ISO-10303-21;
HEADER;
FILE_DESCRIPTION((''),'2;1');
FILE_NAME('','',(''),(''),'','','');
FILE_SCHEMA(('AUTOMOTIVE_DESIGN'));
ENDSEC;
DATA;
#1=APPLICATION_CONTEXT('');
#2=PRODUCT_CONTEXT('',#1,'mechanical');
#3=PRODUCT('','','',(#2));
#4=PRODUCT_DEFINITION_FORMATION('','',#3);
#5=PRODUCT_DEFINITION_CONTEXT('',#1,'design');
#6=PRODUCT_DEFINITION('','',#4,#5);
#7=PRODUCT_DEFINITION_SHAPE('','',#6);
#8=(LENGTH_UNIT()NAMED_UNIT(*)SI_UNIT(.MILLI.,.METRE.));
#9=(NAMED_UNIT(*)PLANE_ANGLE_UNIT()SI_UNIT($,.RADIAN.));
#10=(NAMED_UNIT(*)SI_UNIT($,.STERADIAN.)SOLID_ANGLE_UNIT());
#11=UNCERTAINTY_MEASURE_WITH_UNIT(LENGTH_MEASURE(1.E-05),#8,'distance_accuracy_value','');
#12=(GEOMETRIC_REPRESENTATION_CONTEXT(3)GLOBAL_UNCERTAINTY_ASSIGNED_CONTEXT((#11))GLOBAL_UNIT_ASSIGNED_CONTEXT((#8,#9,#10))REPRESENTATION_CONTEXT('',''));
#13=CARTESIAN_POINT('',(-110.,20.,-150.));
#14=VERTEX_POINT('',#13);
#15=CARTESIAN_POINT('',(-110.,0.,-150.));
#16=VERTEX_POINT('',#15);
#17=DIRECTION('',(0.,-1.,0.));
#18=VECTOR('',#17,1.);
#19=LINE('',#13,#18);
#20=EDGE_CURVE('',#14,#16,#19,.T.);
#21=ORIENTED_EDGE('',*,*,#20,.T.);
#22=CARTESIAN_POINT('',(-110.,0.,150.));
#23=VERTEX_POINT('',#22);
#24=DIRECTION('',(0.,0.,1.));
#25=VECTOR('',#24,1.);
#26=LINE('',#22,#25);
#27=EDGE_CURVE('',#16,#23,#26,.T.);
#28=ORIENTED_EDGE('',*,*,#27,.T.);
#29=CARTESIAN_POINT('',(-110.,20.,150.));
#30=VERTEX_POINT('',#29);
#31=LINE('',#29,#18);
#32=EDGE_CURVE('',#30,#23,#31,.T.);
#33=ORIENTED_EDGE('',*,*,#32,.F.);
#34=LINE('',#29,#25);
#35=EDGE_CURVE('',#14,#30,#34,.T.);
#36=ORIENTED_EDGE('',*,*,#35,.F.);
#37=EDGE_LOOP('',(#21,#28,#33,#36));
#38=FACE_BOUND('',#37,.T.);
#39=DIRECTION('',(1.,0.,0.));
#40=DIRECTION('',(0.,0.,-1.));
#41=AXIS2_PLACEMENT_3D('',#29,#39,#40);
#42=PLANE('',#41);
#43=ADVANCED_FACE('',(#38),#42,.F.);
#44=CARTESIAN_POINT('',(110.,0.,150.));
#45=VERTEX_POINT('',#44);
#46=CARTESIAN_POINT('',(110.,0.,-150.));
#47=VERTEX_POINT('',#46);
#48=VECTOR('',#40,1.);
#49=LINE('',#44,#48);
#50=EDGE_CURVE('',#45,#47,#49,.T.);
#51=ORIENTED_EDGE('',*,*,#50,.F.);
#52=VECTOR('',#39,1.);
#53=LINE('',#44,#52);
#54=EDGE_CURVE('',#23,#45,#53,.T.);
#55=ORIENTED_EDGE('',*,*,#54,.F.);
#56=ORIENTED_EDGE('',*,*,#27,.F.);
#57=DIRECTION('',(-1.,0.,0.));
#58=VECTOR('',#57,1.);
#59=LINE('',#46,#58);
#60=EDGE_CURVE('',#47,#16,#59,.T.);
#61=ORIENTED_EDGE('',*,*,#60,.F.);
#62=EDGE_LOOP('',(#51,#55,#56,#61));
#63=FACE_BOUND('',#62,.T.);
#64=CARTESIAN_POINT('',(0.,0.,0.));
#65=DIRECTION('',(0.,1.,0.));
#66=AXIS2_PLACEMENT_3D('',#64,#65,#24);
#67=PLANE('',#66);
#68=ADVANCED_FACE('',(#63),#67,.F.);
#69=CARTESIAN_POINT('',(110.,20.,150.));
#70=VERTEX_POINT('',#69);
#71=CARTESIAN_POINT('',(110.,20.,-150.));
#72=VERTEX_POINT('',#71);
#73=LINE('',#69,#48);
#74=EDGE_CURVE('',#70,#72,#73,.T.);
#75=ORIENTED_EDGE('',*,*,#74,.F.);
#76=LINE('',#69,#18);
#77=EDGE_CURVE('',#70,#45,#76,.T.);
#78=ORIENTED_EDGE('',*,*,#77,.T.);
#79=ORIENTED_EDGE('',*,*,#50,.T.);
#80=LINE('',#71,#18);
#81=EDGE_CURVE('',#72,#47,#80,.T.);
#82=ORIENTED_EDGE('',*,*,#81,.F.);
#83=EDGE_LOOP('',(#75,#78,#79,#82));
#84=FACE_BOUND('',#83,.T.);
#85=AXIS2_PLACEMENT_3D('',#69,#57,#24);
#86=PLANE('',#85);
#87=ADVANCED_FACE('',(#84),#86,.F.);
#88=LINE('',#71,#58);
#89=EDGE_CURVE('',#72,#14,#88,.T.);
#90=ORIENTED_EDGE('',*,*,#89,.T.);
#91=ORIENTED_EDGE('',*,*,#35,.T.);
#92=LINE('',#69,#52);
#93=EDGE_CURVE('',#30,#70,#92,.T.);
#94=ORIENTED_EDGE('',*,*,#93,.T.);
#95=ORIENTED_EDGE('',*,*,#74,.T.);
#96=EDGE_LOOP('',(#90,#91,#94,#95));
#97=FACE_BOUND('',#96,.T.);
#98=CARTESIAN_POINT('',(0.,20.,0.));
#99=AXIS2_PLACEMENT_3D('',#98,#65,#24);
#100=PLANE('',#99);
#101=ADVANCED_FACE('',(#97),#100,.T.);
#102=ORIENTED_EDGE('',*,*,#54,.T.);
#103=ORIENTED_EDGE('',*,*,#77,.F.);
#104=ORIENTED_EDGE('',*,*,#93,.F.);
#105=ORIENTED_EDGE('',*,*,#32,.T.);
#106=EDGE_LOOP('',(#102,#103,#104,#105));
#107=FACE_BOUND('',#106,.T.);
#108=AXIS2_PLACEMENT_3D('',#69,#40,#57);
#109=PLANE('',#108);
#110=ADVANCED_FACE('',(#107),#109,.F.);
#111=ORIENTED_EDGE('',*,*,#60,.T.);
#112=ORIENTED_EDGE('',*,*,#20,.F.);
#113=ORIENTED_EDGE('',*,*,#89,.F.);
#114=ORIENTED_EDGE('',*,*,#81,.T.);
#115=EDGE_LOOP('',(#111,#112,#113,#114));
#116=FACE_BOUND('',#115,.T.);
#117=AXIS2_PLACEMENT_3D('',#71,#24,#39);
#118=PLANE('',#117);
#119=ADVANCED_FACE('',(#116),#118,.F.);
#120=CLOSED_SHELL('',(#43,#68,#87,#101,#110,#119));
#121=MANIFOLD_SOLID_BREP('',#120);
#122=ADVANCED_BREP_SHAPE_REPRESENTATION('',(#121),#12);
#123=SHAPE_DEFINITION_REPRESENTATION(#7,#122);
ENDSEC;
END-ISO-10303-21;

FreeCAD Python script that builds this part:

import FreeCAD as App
import Part
import Sketcher

doc = App.newDocument("Part")
body = doc.addObject("PartDesign::Body", "Body")

sketch1 = doc.addObject("Sketcher::SketchObject", "Sketch")
body.addObject(sketch1)
sketch1.AttachmentSupport = (doc.XZ_Plane, [""])
sketch1.MapMode = "FlatFace"
sketch1.addGeometry([
    Part.LineSegment(App.Vector(-110, -150, 0), App.Vector(-110, 150, 0)),
    Part.LineSegment(App.Vector(-110, 150, 0), App.Vector(110, 150, 0)),
    Part.LineSegment(App.Vector(110, 150, 0), App.Vector(110, -150, 0)),
    Part.LineSegment(App.Vector(110, -150, 0), App.Vector(-110, -150, 0)),
], False)
sketch1.addConstraint([
    Sketcher.Constraint("Coincident", 0, 2, 1, 1),
    Sketcher.Constraint("Coincident", 1, 2, 2, 1),
    Sketcher.Constraint("Coincident", 2, 2, 3, 1),
    Sketcher.Constraint("Coincident", 3, 2, 0, 1),
    Sketcher.Constraint("Vertical", 0),
    Sketcher.Constraint("Horizontal", 1),
    Sketcher.Constraint("Vertical", 2),
    Sketcher.Constraint("Horizontal", 3),
    Sketcher.Constraint("Symmetric", 0, 2, 2, 2, -1, 1),
    Sketcher.Constraint("DistanceX", 1, 1, 1, 2, 220.0),
    Sketcher.Constraint("DistanceY", 0, 1, 0, 2, 300.0),
])
pad1 = doc.addObject("PartDesign::Pad", "Pad")
body.addObject(pad1)
pad1.Profile = sketch1
pad1.Length = 20
pad1.Reversed = True

doc.recompute()
